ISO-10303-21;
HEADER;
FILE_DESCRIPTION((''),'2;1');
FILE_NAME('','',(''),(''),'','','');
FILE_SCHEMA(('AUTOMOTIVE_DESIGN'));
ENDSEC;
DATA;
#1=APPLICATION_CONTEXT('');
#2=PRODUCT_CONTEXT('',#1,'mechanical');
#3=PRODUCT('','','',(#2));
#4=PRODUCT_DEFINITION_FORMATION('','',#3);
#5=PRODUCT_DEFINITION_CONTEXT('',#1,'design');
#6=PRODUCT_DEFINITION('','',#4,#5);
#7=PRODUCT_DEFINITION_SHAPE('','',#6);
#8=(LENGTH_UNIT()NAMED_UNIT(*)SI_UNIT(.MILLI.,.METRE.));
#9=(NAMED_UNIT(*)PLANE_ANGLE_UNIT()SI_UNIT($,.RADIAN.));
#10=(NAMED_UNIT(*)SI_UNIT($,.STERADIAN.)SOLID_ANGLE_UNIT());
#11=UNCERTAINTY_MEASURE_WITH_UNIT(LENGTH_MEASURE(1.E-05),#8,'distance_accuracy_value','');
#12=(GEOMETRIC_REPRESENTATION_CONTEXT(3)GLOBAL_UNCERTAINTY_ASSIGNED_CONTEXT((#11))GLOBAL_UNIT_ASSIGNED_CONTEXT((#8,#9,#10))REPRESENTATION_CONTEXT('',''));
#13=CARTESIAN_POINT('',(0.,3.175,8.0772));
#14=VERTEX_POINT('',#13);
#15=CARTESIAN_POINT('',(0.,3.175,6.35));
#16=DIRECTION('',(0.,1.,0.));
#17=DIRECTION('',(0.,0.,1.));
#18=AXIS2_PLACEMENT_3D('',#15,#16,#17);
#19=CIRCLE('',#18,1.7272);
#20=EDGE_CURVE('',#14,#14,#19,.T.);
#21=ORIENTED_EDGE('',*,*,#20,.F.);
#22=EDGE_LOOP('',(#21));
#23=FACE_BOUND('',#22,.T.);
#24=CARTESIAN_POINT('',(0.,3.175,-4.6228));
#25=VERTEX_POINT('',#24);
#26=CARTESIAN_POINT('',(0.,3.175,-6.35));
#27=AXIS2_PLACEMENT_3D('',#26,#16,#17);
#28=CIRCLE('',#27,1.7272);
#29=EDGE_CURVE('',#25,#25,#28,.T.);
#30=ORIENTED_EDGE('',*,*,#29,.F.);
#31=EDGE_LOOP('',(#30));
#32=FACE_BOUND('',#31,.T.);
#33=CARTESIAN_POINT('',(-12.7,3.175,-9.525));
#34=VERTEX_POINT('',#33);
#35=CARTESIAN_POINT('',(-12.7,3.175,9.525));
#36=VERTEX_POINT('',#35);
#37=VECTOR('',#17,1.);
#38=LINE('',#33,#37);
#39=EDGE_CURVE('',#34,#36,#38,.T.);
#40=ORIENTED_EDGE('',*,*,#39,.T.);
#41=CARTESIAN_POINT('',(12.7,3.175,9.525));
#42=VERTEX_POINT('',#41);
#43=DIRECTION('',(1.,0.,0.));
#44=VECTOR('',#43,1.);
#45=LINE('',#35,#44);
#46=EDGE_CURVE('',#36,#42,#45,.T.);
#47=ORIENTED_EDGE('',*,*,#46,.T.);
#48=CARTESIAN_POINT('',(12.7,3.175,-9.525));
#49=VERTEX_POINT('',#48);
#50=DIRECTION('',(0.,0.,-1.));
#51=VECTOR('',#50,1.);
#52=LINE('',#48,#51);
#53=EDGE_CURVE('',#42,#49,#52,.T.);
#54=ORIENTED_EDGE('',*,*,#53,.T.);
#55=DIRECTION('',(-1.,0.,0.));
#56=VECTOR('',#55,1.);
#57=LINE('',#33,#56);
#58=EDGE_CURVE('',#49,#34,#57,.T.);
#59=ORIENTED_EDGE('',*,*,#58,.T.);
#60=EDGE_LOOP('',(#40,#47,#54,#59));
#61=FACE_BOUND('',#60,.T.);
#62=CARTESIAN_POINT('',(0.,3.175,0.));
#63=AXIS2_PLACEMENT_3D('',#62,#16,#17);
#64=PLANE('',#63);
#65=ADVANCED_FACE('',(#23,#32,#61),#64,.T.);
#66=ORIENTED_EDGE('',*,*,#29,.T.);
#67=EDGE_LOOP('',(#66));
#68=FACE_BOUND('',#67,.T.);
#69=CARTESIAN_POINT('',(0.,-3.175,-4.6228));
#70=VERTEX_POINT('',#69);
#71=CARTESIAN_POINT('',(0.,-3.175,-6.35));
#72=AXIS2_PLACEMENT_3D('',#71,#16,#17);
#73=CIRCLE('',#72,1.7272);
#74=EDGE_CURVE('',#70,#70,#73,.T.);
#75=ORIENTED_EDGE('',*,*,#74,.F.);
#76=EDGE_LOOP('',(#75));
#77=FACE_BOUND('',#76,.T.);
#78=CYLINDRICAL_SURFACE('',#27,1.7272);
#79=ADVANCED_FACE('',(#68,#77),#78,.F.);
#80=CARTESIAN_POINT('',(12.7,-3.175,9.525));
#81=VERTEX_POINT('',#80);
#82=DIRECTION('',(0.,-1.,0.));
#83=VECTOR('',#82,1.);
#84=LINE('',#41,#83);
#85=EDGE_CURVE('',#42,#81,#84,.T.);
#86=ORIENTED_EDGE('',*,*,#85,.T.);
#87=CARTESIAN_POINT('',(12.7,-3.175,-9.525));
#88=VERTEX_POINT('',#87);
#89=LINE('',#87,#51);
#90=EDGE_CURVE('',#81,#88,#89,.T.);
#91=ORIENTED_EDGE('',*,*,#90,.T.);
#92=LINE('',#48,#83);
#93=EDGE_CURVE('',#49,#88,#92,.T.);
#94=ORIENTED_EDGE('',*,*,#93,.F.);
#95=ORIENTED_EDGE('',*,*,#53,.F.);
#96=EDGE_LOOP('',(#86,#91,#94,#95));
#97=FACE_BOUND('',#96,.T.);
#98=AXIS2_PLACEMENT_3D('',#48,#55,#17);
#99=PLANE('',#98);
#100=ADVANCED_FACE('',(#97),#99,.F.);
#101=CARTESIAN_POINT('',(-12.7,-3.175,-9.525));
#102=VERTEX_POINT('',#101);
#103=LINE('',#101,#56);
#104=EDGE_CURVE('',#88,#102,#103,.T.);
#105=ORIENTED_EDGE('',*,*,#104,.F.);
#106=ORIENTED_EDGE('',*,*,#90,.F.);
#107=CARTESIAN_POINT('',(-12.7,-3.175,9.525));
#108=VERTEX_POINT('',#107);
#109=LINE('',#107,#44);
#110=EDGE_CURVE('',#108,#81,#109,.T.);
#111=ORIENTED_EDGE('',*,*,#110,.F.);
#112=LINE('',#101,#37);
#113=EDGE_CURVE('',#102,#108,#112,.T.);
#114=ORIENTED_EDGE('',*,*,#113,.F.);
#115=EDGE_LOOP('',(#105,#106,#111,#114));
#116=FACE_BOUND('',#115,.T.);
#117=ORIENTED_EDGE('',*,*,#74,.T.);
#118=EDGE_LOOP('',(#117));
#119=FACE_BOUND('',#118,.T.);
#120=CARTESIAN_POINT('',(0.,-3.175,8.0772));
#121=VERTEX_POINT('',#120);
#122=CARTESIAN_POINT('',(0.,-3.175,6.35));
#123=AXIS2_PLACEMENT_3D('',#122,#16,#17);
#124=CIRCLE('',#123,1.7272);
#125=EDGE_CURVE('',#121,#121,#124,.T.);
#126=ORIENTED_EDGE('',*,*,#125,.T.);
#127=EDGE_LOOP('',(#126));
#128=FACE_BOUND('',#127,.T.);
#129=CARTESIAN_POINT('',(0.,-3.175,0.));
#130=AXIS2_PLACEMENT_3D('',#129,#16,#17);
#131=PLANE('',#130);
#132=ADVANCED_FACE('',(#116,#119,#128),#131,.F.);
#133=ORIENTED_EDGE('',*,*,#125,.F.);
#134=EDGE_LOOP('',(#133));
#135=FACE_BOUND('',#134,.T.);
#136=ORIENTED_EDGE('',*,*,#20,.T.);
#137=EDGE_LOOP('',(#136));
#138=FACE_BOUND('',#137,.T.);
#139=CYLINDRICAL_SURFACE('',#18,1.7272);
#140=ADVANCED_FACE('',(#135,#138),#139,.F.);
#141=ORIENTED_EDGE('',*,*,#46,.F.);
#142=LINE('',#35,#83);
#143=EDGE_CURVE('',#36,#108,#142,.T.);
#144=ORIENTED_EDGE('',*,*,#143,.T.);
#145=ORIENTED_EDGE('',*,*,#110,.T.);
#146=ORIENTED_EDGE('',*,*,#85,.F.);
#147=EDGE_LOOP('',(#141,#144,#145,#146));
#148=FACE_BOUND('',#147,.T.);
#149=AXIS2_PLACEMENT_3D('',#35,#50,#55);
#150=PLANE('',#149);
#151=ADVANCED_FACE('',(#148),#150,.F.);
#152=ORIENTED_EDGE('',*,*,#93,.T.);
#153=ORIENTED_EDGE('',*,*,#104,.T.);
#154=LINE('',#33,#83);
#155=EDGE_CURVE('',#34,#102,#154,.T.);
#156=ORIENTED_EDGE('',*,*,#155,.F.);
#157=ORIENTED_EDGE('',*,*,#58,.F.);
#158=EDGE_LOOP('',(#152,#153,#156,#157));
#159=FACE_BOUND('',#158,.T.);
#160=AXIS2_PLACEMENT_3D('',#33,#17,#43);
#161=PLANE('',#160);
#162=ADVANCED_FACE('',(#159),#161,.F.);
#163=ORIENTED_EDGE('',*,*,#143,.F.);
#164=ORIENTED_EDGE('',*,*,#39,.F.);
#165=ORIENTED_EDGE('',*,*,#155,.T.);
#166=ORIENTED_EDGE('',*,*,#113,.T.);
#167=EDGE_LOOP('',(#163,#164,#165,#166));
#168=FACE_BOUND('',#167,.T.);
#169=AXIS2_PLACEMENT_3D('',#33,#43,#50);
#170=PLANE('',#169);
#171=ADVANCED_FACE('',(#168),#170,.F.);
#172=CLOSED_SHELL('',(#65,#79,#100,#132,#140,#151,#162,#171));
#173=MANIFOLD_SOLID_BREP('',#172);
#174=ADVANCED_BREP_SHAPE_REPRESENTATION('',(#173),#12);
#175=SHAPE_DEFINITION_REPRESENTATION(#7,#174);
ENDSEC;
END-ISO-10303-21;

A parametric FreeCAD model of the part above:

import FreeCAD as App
import Part
import Sketcher

V = App.Vector
Q = App.Units.Quantity

doc = App.newDocument("Part")
body = doc.addObject("PartDesign::Body", "Body")

# Sketch on XZ plane
sketch1 = body.newObject("Sketcher::SketchObject", "Sketch")
sketch1.AttachmentSupport = (doc.getObject("XZ_Plane"), [""])
sketch1.MapMode = "FlatFace"
sketch1.addGeometry([
    Part.LineSegment(V(-13, -10, 0), V(-13, 10, 0)),
    Part.LineSegment(V(-13, 10, 0), V(13, 10, 0)),
    Part.LineSegment(V(13, 10, 0), V(13, -10, 0)),
    Part.LineSegment(V(13, -10, 0), V(-13, -10, 0)),
], False)
sketch1.addConstraint([
    Sketcher.Constraint("Coincident", 0, 2, 1, 1),
    Sketcher.Constraint("Coincident", 1, 2, 2, 1),
    Sketcher.Constraint("Coincident", 2, 2, 3, 1),
    Sketcher.Constraint("Coincident", 3, 2, 0, 1),
    Sketcher.Constraint("Vertical", 0),
    Sketcher.Constraint("Horizontal", 1),
    Sketcher.Constraint("Vertical", 2),
    Sketcher.Constraint("Horizontal", 3),
    Sketcher.Constraint("Symmetric", 0, 2, 2, 2, -1, 1),
    Sketcher.Constraint("DistanceX", 1, 1, 1, 2, Q("1 in")),
    Sketcher.Constraint("DistanceY", 0, 1, 0, 2, Q("0.75 in")),
])
pad1 = body.newObject("PartDesign::Pad", "Pad")
pad1.Profile = sketch1
pad1.Length = Q("0.25 in")
pad1.Midplane = True

# Sketch on XZ plane
sketch2 = body.newObject("Sketcher::SketchObject", "Sketch001")
sketch2.AttachmentSupport = (doc.getObject("XZ_Plane"), [""])
sketch2.MapMode = "FlatFace"
sketch2.AttachmentOffset = App.Placement(V(0, 0, -0.125 * 25.4), App.Rotation())
sketch2.addGeometry([
    Part.Circle(V(0, -6.3, 0), V(0, 0, 1), 1.7),
    Part.Circle(V(0, 6.3, 0), V(0, 0, 1), 1.7),
], False)
sketch2.addConstraint([
    Sketcher.Constraint("Equal", 0, 1),
    Sketcher.Constraint("Symmetric", 0, 3, 1, 3, -1, 1),
    Sketcher.Constraint("PointOnObject", 0, 3, -2),
    Sketcher.Constraint("Diameter", 0, Q("0.136 in")),
    Sketcher.Constraint("DistanceY", 0, 3, 1, 3, Q("0.5 in")),
])
doc.recompute()
hole = body.newObject("PartDesign::Hole", "Hole")
hole.Profile = sketch2
hole.ThreadType = "None"
hole.Diameter = Q("0.136 in")
hole.DepthType = "ThroughAll"
hole.Reversed = True

doc.recompute()
